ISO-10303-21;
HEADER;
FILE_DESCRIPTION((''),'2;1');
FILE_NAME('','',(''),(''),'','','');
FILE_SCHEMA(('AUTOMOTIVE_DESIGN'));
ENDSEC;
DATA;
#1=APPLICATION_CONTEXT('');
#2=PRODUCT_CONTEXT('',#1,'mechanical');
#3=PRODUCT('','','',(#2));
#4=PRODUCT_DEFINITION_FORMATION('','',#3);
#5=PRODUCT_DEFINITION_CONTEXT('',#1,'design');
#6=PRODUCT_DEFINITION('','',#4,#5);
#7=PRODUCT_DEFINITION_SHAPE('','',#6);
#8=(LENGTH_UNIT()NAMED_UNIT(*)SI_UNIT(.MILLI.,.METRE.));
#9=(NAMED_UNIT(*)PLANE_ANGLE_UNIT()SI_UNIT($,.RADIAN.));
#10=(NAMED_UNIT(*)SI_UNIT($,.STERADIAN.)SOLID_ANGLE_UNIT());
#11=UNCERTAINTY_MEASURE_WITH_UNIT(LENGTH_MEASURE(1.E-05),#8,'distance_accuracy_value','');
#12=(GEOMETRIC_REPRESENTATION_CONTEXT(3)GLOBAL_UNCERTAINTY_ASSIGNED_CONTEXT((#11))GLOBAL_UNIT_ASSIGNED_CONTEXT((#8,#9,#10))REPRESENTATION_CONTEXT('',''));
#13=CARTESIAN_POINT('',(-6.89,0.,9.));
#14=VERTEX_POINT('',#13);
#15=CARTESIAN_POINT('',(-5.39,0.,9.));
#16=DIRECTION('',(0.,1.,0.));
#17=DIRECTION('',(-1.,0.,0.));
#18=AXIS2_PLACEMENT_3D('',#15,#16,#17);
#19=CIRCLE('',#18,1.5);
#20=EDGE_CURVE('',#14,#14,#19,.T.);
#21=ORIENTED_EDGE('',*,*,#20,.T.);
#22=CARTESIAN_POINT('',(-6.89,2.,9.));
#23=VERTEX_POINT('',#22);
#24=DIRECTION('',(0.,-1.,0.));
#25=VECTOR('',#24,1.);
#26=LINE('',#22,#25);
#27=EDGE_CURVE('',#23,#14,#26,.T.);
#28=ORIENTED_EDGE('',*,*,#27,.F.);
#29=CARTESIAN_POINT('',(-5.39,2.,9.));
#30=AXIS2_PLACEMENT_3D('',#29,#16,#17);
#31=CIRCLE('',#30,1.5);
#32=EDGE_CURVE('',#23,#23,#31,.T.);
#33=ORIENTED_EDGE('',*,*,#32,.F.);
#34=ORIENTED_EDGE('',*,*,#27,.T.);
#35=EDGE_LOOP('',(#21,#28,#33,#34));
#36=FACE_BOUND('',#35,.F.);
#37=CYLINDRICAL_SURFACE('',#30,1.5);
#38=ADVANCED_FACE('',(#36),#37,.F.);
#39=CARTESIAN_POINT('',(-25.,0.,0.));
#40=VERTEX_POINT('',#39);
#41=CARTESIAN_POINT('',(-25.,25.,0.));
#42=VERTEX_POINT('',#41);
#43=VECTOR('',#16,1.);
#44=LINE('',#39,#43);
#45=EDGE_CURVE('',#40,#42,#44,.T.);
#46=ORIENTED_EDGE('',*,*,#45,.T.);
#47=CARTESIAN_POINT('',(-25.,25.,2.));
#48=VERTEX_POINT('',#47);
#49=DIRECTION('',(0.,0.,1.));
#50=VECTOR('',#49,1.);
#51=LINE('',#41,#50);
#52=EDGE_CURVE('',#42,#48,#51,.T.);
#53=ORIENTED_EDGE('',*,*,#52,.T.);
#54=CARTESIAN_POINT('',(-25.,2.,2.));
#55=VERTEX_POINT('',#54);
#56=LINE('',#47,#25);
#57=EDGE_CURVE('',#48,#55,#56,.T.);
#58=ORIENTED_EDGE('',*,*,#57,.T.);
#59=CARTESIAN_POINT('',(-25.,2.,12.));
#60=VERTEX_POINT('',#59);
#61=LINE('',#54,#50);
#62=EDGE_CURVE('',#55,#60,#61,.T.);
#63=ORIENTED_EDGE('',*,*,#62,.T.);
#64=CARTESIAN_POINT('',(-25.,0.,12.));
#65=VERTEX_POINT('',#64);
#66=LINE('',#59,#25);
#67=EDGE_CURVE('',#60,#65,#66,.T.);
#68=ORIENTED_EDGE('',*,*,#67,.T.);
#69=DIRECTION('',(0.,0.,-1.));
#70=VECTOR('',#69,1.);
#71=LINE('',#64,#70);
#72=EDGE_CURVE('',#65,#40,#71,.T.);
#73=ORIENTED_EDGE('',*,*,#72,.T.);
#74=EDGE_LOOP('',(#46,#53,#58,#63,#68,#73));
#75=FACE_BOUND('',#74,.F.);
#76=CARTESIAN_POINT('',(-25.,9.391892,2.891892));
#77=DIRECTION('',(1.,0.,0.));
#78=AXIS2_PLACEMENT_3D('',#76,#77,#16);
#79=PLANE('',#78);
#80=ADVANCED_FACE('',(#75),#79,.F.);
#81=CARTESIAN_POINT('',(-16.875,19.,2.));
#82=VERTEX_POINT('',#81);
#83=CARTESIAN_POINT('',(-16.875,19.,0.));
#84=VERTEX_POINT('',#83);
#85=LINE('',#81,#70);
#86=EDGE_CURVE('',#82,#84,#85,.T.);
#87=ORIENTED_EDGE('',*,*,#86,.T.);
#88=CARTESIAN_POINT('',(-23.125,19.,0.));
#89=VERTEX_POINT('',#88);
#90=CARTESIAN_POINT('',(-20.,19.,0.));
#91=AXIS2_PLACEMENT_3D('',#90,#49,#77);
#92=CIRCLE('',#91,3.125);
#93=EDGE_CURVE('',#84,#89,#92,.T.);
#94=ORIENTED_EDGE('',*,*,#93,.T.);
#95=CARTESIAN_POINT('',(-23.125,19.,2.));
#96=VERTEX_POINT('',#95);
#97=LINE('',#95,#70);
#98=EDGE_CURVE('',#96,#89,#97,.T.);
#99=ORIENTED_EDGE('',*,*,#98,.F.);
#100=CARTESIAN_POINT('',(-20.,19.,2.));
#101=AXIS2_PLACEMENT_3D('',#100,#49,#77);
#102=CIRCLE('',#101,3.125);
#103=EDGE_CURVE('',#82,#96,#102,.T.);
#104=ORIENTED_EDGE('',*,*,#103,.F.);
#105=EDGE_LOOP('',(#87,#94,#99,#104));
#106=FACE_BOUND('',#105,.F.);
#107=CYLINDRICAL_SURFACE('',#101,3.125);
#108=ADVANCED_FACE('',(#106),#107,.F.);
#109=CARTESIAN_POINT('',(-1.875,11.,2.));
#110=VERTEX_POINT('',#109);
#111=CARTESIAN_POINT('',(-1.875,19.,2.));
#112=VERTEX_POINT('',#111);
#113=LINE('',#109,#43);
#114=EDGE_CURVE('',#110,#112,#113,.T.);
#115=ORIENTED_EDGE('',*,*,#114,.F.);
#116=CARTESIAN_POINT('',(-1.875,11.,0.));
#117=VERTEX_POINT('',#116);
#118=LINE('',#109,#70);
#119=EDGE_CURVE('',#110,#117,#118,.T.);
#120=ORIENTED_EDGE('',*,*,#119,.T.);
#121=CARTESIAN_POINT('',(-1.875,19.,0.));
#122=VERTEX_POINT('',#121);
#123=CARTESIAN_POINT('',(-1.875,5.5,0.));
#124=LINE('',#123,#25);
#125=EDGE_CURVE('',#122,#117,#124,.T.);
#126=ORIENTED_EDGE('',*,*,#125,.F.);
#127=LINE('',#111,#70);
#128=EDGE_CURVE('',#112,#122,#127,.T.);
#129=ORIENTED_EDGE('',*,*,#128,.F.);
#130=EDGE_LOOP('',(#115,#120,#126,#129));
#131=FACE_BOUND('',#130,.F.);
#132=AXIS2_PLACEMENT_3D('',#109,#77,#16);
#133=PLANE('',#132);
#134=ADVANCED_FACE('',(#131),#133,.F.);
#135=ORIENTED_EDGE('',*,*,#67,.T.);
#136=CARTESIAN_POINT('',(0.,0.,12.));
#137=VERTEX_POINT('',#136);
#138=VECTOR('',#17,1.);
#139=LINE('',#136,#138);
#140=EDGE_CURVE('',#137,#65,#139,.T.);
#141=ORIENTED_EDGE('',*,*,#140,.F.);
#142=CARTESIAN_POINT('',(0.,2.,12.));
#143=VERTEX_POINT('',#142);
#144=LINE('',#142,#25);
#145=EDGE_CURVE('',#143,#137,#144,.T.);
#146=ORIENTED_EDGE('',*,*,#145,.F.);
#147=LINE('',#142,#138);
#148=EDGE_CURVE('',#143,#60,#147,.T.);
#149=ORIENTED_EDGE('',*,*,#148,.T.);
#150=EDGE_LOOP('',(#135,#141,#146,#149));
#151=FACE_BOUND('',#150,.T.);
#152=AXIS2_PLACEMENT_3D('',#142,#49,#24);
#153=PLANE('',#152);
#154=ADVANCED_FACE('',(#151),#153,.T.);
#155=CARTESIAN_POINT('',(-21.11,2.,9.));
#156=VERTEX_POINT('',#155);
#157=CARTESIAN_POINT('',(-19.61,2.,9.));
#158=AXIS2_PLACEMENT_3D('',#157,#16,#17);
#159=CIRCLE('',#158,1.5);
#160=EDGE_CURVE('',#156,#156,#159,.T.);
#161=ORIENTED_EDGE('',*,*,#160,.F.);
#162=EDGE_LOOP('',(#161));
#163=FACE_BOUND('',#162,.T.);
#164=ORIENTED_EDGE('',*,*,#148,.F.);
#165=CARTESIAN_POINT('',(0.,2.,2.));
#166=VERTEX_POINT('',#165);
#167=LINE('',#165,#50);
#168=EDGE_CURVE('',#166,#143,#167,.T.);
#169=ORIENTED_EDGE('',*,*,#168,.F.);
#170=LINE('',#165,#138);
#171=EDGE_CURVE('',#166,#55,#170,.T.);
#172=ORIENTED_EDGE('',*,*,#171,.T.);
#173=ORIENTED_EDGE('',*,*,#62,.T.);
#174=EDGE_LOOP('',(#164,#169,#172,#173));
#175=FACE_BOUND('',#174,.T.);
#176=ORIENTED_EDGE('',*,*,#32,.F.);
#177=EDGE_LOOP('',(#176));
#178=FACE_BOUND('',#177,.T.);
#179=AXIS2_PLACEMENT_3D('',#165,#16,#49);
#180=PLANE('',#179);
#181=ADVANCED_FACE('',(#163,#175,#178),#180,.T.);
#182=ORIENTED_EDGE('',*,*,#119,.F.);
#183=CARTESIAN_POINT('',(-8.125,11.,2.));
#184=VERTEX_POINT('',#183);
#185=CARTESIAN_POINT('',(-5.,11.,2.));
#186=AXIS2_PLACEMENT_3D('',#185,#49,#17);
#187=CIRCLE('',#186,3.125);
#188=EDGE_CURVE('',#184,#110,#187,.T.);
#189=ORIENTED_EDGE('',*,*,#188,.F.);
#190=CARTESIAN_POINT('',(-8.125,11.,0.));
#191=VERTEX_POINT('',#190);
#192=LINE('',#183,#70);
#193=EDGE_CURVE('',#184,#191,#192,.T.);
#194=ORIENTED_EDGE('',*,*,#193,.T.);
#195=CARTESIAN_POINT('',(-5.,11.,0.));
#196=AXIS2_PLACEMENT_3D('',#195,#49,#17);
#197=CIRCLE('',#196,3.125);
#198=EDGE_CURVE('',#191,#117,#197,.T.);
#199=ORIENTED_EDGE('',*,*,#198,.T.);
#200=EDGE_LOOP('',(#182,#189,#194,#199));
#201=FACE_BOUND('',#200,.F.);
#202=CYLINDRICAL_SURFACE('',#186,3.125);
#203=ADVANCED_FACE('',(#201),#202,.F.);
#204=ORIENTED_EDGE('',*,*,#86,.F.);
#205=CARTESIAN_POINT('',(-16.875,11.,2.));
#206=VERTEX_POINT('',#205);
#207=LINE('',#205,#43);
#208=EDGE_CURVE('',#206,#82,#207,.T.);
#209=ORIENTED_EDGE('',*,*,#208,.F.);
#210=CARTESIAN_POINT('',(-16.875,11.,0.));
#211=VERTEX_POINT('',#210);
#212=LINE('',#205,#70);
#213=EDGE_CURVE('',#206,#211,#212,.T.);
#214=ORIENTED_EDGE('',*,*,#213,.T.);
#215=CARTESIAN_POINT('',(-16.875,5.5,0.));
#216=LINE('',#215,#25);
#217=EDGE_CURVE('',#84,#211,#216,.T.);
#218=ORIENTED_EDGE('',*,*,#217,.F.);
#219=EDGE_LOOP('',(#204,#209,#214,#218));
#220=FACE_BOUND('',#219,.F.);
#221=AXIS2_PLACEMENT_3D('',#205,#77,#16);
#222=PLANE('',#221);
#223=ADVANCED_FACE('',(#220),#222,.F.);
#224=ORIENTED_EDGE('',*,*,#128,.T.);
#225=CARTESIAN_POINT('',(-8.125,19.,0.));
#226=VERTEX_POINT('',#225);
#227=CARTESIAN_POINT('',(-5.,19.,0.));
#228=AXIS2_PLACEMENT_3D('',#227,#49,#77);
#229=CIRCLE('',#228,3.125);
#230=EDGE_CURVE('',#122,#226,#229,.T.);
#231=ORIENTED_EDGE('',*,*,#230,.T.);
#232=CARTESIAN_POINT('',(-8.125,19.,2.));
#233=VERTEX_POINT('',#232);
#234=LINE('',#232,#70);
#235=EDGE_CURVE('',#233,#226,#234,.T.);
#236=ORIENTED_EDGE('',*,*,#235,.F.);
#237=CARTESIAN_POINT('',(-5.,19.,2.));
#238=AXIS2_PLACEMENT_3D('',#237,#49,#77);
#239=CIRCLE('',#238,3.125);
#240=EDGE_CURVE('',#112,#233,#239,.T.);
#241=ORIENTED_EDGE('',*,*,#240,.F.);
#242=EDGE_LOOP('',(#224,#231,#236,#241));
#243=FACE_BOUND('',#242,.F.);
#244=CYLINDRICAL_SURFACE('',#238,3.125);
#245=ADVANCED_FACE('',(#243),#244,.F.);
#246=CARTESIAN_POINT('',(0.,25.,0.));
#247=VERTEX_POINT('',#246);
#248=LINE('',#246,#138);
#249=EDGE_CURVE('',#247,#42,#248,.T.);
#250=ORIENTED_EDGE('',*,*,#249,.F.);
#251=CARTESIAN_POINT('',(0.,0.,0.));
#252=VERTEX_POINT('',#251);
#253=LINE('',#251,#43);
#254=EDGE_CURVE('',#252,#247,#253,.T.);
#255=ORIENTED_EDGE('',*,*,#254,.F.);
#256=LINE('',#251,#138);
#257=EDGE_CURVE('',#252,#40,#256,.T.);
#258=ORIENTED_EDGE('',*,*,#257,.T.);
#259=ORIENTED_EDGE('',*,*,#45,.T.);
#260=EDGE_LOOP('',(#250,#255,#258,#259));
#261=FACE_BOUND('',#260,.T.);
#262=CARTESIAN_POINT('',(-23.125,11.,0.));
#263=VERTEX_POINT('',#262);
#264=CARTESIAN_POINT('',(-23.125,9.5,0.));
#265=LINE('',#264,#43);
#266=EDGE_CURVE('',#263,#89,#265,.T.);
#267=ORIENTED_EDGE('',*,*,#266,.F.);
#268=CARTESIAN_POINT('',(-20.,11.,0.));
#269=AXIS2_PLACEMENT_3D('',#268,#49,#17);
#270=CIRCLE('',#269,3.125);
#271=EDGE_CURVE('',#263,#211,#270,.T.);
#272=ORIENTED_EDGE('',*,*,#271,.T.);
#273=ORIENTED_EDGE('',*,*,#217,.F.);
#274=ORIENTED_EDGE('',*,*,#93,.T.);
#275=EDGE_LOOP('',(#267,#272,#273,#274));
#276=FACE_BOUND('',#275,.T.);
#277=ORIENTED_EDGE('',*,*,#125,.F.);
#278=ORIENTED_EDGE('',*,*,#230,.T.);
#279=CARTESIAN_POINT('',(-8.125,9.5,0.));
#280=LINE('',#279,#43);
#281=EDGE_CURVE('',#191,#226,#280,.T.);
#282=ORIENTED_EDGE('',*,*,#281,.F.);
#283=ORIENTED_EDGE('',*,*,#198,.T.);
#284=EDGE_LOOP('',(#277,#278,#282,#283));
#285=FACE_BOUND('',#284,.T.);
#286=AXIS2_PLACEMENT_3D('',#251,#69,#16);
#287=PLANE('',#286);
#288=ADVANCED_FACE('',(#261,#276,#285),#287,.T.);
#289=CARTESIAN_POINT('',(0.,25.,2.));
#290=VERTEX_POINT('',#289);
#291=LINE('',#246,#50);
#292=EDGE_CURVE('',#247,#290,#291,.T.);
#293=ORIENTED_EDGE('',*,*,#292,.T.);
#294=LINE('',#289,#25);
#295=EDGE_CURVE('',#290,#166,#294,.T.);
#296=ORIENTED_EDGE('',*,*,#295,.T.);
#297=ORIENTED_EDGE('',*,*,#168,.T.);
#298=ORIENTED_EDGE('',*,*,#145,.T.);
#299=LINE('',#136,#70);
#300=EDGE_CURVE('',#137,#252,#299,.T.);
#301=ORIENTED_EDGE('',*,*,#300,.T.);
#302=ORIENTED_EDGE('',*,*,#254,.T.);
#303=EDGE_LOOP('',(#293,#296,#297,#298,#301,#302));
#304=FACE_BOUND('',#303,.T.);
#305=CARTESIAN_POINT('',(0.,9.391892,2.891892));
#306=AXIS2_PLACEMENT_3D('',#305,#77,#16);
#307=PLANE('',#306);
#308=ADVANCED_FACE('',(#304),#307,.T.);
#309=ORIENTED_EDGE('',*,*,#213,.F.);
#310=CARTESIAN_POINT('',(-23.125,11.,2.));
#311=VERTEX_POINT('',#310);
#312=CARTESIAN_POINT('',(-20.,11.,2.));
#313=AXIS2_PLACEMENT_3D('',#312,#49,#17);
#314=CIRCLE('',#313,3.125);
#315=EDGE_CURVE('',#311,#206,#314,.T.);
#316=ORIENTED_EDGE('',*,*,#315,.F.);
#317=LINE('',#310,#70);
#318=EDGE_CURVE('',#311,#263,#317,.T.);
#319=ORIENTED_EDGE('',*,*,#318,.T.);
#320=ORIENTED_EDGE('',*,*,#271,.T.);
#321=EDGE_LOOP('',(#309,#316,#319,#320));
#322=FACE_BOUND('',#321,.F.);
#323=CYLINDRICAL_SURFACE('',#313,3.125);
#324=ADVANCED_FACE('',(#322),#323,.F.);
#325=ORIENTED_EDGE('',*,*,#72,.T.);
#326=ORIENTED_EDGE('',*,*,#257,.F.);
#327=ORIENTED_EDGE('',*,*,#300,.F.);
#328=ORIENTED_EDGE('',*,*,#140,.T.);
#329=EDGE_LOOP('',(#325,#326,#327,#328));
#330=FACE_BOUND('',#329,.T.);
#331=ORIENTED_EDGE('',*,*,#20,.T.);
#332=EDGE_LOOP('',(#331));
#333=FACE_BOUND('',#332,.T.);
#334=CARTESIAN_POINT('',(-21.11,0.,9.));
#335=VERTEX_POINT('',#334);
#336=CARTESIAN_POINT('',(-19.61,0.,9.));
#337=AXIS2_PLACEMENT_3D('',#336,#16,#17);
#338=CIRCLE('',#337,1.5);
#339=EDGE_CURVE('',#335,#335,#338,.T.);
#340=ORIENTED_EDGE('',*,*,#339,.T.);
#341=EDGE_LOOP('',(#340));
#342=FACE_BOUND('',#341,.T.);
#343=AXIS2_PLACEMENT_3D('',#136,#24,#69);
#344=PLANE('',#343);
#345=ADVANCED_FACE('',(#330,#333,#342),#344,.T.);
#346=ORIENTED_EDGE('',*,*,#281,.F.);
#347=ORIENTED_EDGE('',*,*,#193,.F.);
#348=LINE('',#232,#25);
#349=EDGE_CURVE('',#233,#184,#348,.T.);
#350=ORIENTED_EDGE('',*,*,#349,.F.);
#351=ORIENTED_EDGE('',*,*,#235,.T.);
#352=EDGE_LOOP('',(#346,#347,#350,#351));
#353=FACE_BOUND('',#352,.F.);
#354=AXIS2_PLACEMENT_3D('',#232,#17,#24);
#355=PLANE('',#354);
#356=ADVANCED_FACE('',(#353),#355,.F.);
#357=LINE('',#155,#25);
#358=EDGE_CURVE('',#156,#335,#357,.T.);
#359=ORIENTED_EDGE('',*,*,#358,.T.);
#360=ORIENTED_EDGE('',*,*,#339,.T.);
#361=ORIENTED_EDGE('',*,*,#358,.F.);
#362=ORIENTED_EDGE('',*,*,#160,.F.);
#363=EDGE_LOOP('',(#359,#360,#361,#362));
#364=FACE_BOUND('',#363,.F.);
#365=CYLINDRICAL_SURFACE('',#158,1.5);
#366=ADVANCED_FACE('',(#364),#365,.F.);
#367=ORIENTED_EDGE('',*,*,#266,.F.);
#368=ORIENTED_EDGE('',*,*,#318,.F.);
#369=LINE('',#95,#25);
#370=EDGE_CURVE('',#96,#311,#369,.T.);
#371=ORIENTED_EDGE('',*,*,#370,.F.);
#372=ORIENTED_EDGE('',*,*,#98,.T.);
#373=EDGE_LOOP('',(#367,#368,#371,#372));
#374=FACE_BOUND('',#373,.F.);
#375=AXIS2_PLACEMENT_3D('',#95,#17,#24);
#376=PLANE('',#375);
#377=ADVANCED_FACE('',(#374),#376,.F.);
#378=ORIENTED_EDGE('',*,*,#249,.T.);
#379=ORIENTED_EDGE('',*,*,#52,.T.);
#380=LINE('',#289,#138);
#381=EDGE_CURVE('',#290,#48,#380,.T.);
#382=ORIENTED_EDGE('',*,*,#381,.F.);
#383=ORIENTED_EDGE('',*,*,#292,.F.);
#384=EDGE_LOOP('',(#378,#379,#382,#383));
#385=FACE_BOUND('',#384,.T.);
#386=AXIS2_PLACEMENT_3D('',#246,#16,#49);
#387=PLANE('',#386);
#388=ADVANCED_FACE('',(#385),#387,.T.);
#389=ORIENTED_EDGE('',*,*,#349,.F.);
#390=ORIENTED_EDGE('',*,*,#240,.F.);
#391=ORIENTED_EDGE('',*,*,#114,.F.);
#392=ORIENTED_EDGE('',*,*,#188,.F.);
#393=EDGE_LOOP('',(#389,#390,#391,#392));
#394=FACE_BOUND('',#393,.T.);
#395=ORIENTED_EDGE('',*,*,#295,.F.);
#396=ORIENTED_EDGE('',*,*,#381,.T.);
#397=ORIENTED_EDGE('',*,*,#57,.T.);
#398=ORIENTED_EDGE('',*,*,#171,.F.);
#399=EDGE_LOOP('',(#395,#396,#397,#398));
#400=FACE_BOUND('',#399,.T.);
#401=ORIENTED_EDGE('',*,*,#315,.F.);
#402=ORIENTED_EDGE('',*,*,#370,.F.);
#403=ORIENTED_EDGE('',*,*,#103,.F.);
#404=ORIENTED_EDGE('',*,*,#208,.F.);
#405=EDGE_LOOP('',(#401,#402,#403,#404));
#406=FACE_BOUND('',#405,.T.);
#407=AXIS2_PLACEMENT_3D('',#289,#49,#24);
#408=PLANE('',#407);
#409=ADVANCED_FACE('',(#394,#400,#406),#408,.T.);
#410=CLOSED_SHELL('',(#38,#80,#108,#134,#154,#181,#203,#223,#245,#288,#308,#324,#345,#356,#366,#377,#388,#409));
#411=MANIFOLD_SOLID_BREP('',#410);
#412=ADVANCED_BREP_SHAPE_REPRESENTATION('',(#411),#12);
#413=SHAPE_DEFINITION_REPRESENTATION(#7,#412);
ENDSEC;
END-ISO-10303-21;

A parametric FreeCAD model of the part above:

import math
import FreeCAD as App
import Part
import Sketcher

V = App.Vector
Q = App.Units.Quantity


def add_polygon(sketch, points):
    """Adds a closed chain of lines whose ends are joined by coincident constraints."""
    first, n = sketch.GeometryCount, len(points)
    for a, b in zip(points, points[1:] + points[:1]):
        sketch.addGeometry(Part.LineSegment(App.Vector(*a, 0), App.Vector(*b, 0)), False)
    for i in range(n):
        sketch.addConstraint(Sketcher.Constraint("Coincident", first + i, 2, first + (i + 1) % n, 1))

doc = App.newDocument("Part")
body = doc.addObject("PartDesign::Body", "Body")

sketch1 = body.newObject("Sketcher::SketchObject", "Sketch")
sketch1.AttachmentSupport = (doc.getObject("YZ_Plane"), [""])
sketch1.MapMode = "FlatFace"
add_polygon(sketch1, [(0, 12), (0, 0), (25, 0), (25, 2), (2, 2), (2, 12)])
sketch1.addConstraint([
    Sketcher.Constraint("Vertical", 0),
    Sketcher.Constraint("Horizontal", 1),
    Sketcher.Constraint("Vertical", 2),
    Sketcher.Constraint("Horizontal", 3),
    Sketcher.Constraint("Vertical", 4),
    Sketcher.Constraint("Horizontal", 5),
    Sketcher.Constraint("Coincident", 0, 2, -1, 1),
    Sketcher.Constraint("Equal", 5, 2),
    Sketcher.Constraint("DistanceX", 1, 1, 1, 2, Q("25 mm")),
    Sketcher.Constraint("DistanceX", 3, 2, 3, 1, Q("23 mm")),
    Sketcher.Constraint("DistanceY", 0, 2, 0, 1, Q("12 mm")),
])
pad1 = body.newObject("PartDesign::Pad", "Pad")
pad1.Profile = sketch1
pad1.Length = 25
pad1.Reversed = True

sketch2 = body.newObject("Sketcher::SketchObject", "Sketch001")
sketch2.AttachmentSupport = (doc.getObject("XZ_Plane"), [""])
sketch2.MapMode = "FlatFace"
sketch2.AttachmentOffset = App.Placement(V(0, 0, -2), App.Rotation())
sketch2.addGeometry([
    Part.Circle(V(-5.39, 9, 0), V(0, 0, 1), 1.5),
    Part.Circle(V(-19.61, 9, 0), V(0, 0, 1), 1.5),
], False)
sketch2.addConstraint([
    Sketcher.Constraint("Equal", 0, 1),
    Sketcher.Constraint("Horizontal", 0, 3, 1, 3),
    Sketcher.Constraint("Diameter", 0, Q("3 mm")),
    Sketcher.Constraint("DistanceY", -1, 1, 0, 3, Q("9 mm")),
    Sketcher.Constraint("DistanceX", 0, 3, -1, 1, Q("5.39 mm")),
    Sketcher.Constraint("DistanceX", 1, 3, -1, 1, Q("19.61 mm")),
])
pocket1 = body.newObject("PartDesign::Pocket", "Pocket")
pocket1.Profile = sketch2
pocket1.Length = 25
pocket1.Reversed = True

sketch3 = body.newObject("Sketcher::SketchObject", "Sketch002")
sketch3.AttachmentSupport = (doc.getObject("XY_Plane"), [""])
sketch3.MapMode = "FlatFace"
sketch3.AttachmentOffset = App.Placement(V(0, 0, 2), App.Rotation())
sketch3.addGeometry([
    Part.LineSegment(V(-16.875, 11, 0), V(-16.875, 19, 0)),
    Part.ArcOfCircle(Part.Circle(V(-20, 19, 0), V(0, 0, 1), 3.125), math.radians(0), math.radians(180)),
    Part.LineSegment(V(-23.125, 19, 0), V(-23.125, 11, 0)),
    Part.ArcOfCircle(Part.Circle(V(-20, 11, 0), V(0, 0, 1), 3.125), math.radians(180), math.radians(360)),
    Part.LineSegment(V(-1.875, 11, 0), V(-1.875, 19, 0)),
    Part.ArcOfCircle(Part.Circle(V(-5, 19, 0), V(0, 0, 1), 3.125), math.radians(0), math.radians(180)),
    Part.LineSegment(V(-8.125, 19, 0), V(-8.125, 11, 0)),
    Part.ArcOfCircle(Part.Circle(V(-5, 11, 0), V(0, 0, 1), 3.125), math.radians(180), math.radians(360)),
], False)
sketch3.addConstraint([
    Sketcher.Constraint("Tangent", 0, 2, 1, 1),
    Sketcher.Constraint("Tangent", 1, 2, 2, 1),
    Sketcher.Constraint("Tangent", 2, 2, 3, 1),
    Sketcher.Constraint("Tangent", 3, 2, 0, 1),
    Sketcher.Constraint("Tangent", 4, 2, 5, 1),
    Sketcher.Constraint("Tangent", 5, 2, 6, 1),
    Sketcher.Constraint("Tangent", 6, 2, 7, 1),
    Sketcher.Constraint("Tangent", 7, 2, 4, 1),
    Sketcher.Constraint("Vertical", 0),
    Sketcher.Constraint("Vertical", 2),
    Sketcher.Constraint("Vertical", 4),
    Sketcher.Constraint("Vertical", 6),
    Sketcher.Constraint("Equal", 3, 5),
    Sketcher.Constraint("Horizontal", 1, 3, 5, 3),
    Sketcher.Constraint("Horizontal", 3, 3, 7, 3),
    Sketcher.Constraint("DistanceY", 0, 1, 0, 2, Q("8 mm")),
    Sketcher.Constraint("DistanceX", 1, 3, -1, 1, Q("20 mm")),
    Sketcher.Constraint("DistanceY", -1, 1, 1, 3, Q("19 mm")),
    Sketcher.Constraint("DistanceX", 5, 3, -1, 1, Q("5 mm")),
    Sketcher.Constraint("Radius", 1, Q("3.125 mm")),
])
pocket2 = body.newObject("PartDesign::Pocket", "Pocket001")
pocket2.Profile = sketch3
pocket2.Length = 25

doc.recompute()
